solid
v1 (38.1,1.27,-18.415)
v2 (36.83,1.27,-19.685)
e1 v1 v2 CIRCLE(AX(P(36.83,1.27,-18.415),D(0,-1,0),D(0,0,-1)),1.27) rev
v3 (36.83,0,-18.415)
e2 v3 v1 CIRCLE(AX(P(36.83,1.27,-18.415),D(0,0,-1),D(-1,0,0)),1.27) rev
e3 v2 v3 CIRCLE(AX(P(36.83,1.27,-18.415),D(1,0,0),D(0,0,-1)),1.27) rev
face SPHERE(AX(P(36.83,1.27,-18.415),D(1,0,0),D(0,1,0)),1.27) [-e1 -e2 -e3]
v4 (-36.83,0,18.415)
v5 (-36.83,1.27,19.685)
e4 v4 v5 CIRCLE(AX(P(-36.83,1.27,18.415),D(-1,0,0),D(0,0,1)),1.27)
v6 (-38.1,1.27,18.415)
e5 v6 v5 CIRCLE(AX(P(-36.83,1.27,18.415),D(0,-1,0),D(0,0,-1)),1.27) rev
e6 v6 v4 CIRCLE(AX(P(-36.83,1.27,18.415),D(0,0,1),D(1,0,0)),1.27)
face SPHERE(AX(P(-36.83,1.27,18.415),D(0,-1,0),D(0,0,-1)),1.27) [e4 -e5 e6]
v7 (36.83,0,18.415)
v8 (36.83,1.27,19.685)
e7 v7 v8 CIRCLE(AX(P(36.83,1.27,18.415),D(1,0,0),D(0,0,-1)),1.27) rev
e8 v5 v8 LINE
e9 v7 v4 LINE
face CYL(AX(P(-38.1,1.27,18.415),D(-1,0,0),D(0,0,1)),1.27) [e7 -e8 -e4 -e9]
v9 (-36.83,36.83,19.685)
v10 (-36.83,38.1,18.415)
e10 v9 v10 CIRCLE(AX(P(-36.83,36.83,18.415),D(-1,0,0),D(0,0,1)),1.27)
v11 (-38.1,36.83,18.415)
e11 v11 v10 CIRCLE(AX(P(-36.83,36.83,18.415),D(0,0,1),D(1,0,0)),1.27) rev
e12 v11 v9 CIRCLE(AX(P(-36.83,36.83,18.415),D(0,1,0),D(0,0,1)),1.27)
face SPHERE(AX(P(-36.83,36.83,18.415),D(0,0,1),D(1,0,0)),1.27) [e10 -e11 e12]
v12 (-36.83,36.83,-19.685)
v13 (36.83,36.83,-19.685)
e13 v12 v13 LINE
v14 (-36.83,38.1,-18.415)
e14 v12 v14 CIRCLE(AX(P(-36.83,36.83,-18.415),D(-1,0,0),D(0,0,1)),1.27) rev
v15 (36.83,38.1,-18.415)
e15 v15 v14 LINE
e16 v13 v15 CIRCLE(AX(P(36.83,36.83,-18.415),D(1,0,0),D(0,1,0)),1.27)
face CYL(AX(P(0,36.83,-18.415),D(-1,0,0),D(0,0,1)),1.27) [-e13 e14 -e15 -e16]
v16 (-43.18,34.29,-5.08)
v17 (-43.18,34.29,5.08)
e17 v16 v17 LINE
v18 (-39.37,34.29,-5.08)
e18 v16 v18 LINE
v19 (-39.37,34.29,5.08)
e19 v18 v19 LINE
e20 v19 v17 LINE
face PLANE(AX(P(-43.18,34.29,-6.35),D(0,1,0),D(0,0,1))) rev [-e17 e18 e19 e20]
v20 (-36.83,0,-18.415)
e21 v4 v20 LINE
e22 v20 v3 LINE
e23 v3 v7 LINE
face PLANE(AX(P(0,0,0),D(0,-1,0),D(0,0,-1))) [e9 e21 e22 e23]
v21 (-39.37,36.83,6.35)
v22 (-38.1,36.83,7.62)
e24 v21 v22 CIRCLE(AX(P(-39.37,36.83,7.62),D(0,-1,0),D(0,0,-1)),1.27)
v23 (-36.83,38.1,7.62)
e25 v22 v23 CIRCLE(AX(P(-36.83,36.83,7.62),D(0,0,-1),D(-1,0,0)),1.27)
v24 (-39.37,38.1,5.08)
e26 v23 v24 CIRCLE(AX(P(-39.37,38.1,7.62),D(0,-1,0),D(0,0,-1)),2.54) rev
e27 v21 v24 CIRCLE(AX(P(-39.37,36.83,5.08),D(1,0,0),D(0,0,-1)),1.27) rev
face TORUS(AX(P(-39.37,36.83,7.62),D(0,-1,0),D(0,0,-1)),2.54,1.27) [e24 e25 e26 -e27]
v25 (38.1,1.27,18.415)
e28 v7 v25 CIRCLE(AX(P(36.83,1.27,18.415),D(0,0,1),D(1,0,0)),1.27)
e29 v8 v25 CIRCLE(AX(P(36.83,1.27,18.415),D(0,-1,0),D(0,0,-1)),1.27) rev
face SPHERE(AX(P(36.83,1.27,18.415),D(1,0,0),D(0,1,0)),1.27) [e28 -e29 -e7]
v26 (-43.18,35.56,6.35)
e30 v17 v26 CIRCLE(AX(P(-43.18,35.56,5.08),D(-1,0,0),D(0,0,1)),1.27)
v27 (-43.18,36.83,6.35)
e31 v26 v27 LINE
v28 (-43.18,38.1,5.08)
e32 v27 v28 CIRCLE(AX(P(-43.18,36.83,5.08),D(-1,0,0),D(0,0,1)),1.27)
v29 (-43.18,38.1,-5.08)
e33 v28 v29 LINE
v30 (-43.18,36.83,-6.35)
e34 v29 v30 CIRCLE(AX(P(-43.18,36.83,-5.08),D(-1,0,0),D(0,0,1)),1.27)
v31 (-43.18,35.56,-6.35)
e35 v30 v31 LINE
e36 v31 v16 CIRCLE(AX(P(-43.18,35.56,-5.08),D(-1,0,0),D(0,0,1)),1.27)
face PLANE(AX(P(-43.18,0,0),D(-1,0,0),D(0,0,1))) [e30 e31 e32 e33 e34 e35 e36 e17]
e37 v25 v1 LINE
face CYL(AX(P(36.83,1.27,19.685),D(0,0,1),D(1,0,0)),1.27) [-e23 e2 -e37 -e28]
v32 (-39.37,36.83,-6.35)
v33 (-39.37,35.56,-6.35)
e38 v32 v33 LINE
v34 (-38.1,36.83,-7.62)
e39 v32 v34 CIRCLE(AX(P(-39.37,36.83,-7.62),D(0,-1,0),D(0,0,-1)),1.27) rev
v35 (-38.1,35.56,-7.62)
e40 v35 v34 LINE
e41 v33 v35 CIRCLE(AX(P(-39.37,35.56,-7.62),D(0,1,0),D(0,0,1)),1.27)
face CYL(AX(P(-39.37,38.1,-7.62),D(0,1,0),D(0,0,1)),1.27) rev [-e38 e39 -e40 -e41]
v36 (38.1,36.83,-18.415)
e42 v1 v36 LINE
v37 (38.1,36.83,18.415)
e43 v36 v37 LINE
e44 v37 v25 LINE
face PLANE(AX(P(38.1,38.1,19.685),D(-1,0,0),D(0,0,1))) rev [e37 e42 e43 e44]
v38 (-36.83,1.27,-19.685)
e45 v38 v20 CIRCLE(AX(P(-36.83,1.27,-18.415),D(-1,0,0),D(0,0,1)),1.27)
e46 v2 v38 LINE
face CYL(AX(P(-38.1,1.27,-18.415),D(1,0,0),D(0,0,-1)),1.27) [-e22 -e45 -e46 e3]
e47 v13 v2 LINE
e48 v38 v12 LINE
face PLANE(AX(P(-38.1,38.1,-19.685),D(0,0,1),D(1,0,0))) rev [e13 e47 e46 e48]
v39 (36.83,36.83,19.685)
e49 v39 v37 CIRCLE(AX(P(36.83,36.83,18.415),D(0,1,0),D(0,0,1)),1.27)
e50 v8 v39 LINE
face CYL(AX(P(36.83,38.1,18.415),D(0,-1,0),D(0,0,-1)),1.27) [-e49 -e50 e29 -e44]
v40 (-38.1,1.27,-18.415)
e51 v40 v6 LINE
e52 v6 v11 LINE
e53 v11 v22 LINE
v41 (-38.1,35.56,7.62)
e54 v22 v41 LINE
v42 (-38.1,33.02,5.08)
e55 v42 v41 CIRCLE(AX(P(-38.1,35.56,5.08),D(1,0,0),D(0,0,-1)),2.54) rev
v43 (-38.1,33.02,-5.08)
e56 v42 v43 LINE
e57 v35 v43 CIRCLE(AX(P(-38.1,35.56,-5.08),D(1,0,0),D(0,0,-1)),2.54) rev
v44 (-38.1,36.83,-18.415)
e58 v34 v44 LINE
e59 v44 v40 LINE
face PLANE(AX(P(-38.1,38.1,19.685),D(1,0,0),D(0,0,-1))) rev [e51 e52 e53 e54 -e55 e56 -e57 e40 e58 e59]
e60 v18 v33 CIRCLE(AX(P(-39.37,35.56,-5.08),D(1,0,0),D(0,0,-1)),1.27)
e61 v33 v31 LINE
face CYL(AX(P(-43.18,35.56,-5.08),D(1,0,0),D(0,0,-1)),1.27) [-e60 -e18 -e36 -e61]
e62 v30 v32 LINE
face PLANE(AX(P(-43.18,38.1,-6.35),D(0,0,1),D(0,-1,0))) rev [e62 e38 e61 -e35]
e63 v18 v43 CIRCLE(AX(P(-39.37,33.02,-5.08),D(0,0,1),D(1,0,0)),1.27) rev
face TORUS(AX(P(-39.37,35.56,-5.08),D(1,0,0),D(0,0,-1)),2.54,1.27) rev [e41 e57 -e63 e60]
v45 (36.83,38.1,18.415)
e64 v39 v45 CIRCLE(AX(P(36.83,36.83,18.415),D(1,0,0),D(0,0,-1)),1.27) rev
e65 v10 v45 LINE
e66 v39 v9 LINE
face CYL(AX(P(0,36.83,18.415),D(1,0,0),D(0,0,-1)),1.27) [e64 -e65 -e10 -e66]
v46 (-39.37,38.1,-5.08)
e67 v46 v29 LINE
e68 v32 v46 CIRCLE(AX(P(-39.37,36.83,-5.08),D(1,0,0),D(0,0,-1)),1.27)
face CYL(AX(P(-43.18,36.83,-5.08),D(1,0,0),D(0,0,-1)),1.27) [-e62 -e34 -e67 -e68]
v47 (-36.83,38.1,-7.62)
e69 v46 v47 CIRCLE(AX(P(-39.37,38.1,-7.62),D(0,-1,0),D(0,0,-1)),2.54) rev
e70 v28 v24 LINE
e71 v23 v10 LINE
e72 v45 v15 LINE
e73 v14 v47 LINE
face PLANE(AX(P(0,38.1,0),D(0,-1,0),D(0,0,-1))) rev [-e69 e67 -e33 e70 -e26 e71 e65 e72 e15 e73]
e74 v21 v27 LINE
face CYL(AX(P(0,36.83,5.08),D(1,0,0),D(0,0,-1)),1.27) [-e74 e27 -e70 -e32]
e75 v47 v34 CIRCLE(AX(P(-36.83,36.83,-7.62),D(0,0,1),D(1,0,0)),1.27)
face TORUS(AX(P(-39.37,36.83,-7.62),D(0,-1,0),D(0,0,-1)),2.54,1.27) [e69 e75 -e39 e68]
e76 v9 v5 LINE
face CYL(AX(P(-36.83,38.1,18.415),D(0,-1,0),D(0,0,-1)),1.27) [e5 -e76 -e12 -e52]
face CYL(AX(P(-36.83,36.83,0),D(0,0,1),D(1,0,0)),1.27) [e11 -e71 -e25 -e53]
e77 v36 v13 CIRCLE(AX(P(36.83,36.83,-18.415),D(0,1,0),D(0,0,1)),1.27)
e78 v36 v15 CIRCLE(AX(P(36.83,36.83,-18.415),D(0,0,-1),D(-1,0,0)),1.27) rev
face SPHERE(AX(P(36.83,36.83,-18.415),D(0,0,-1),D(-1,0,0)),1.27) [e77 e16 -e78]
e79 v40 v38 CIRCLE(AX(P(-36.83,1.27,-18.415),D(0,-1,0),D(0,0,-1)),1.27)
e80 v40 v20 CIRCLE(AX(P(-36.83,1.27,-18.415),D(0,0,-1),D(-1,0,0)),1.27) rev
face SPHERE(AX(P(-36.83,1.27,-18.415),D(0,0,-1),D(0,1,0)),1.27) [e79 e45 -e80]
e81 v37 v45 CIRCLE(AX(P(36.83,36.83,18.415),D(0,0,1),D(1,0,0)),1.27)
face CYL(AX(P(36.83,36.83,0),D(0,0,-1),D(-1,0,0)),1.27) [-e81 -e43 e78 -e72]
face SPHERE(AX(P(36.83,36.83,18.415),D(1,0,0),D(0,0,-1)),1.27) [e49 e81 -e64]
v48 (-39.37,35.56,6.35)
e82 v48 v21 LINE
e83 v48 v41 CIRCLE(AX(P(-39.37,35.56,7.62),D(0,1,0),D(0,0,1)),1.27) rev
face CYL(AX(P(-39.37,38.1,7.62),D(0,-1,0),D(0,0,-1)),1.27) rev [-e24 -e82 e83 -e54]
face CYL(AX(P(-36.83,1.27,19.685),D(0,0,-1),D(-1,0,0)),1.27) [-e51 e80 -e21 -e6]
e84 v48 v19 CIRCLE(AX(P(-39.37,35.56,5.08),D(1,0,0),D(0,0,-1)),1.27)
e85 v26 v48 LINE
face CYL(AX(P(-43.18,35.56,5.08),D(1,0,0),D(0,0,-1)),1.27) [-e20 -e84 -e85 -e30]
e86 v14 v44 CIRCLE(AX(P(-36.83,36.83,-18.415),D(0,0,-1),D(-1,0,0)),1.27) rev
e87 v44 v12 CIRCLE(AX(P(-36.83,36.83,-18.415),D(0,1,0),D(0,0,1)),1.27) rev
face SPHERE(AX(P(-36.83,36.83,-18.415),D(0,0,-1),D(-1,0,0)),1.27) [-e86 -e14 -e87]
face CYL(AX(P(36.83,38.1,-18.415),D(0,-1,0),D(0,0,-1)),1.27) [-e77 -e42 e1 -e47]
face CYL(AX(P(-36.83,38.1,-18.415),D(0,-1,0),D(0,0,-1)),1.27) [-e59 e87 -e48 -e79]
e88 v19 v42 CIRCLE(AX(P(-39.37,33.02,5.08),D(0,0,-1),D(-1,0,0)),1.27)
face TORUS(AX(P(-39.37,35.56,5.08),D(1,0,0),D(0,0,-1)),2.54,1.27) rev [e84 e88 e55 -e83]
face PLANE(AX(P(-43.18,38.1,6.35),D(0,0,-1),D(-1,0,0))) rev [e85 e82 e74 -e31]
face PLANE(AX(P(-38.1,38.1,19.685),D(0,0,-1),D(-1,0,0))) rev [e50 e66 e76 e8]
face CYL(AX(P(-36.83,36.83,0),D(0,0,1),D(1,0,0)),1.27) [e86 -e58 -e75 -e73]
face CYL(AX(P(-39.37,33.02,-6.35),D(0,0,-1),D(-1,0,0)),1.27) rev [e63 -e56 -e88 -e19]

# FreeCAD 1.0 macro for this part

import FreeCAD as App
import Part
import Sketcher

V = App.Vector
Q = App.Units.Quantity


def edges_at(feature, points):
    """Names of the edges that pass closest to the given points."""
    edges = feature.Shape.Edges
    near = lambda p: min(range(len(edges)), key=lambda i: edges[i].distToShape(Part.Vertex(*p))[0])
    return sorted({f"Edge{near(p) + 1}" for p in points})

doc = App.newDocument("Part")
body = doc.addObject("PartDesign::Body", "Body")

# Sketch on XZ plane
sketch1 = body.newObject("Sketcher::SketchObject", "Sketch")
sketch1.AttachmentSupport = (doc.getObject("XZ_Plane"), [""])
sketch1.MapMode = "FlatFace"
sketch1.addGeometry(Part.LineSegment(V(-38.1, -19.685, 0), V(-38.1, 19.685, 0)), False)
sketch1.addGeometry(Part.LineSegment(V(-38.1, 19.685, 0), V(38.1, 19.685, 0)), False)
sketch1.addGeometry(Part.LineSegment(V(38.1, 19.685, 0), V(38.1, -19.685, 0)), False)
sketch1.addGeometry(Part.LineSegment(V(38.1, -19.685, 0), V(-38.1, -19.685, 0)), False)
sketch1.addConstraint(Sketcher.Constraint("Coincident", 0, 2, 1, 1))
sketch1.addConstraint(Sketcher.Constraint("Coincident", 1, 2, 2, 1))
sketch1.addConstraint(Sketcher.Constraint("Coincident", 2, 2, 3, 1))
sketch1.addConstraint(Sketcher.Constraint("Coincident", 3, 2, 0, 1))
sketch1.addConstraint(Sketcher.Constraint("Vertical", 0))
sketch1.addConstraint(Sketcher.Constraint("Horizontal", 1))
sketch1.addConstraint(Sketcher.Constraint("Vertical", 2))
sketch1.addConstraint(Sketcher.Constraint("Horizontal", 3))
sketch1.addConstraint(Sketcher.Constraint("Symmetric", 0, 2, 2, 2, -1, 1))
sketch1.addConstraint(Sketcher.Constraint("DistanceX", 1, 1, 1, 2, Q("3 in")))
sketch1.addConstraint(Sketcher.Constraint("DistanceY", 0, 1, 0, 2, Q("1.55 in")))
pad1 = body.newObject("PartDesign::Pad", "Pad")
pad1.Profile = sketch1
pad1.Length = Q("1.5 in")
pad1.Reversed = True

# Sketch on YZ plane
sketch2 = body.newObject("Sketcher::SketchObject", "Sketch001")
sketch2.AttachmentSupport = (doc.getObject("YZ_Plane"), [""])
sketch2.MapMode = "FlatFace"
sketch2.AttachmentOffset = App.Placement(V(0, 0, -1.5 * 25.4), App.Rotation())
sketch2.addGeometry(Part.LineSegment(V(38.1, -6.35, 0), V(34.29, -6.35, 0)), False)
sketch2.addGeometry(Part.LineSegment(V(34.29, -6.35, 0), V(34.29, 6.35, 0)), False)
sketch2.addGeometry(Part.LineSegment(V(34.29, 6.35, 0), V(38.1, 6.35, 0)), False)
sketch2.addGeometry(Part.LineSegment(V(38.1, 6.35, 0), V(38.1, -6.35, 0)), False)
sketch2.addConstraint(Sketcher.Constraint("Coincident", 0, 2, 1, 1))
sketch2.addConstraint(Sketcher.Constraint("Coincident", 1, 2, 2, 1))
sketch2.addConstraint(Sketcher.Constraint("Coincident", 2, 2, 3, 1))
sketch2.addConstraint(Sketcher.Constraint("Coincident", 3, 2, 0, 1))
sketch2.addConstraint(Sketcher.Constraint("Horizontal", 0))
sketch2.addConstraint(Sketcher.Constraint("Vertical", 1))
sketch2.addConstraint(Sketcher.Constraint("Horizontal", 2))
sketch2.addConstraint(Sketcher.Constraint("Vertical", 3))
sketch2.addConstraint(Sketcher.Constraint("DistanceY", 1, 1, 1, 2, Q("0.5 in")))
sketch2.addConstraint(Sketcher.Constraint("DistanceX", 0, 2, 0, 1, Q("0.15 in")))
sketch2.addConstraint(Sketcher.Constraint("DistanceX", -1, 1, 2, 2, Q("1.5 in")))
sketch2.addConstraint(Sketcher.Constraint("DistanceY", 0, 2, -1, 1, Q("0.25 in")))
pad2 = body.newObject("PartDesign::Pad", "Pad001")
pad2.Profile = sketch2
pad2.Length = Q("0.2 in")
pad2.Reversed = True
doc.recompute()

fillet = body.newObject("PartDesign::Fillet", "Fillet")
fillet.Base = (pad2, edges_at(pad2, [
    (-38.1, 38.1, -13.018),
    (-38.1, 38.1, 13.018),
    (-38.1, 36.195, -6.35),
    (-40.64, 38.1, -6.35),
    (-38.1, 34.29, 0),
    (0, 38.1, 19.685),
    (-40.64, 34.29, -6.35),
    (-38.1, 36.195, 6.35),
    (-40.64, 34.29, 6.35),
    (-40.64, 38.1, 6.35),
    (38.1, 38.1, 0),
    (0, 0, 19.685),
    (-38.1, 0, 0),
    (0, 0, -19.685),
    (38.1, 0, 0),
    (38.1, 19.05, 19.685),
    (-38.1, 19.05, 19.685),
    (-38.1, 19.05, -19.685),
    (38.1, 19.05, -19.685),
    (0, 38.1, -19.685),
]))
fillet.Radius = Q("0.05 in")

doc.recompute()
